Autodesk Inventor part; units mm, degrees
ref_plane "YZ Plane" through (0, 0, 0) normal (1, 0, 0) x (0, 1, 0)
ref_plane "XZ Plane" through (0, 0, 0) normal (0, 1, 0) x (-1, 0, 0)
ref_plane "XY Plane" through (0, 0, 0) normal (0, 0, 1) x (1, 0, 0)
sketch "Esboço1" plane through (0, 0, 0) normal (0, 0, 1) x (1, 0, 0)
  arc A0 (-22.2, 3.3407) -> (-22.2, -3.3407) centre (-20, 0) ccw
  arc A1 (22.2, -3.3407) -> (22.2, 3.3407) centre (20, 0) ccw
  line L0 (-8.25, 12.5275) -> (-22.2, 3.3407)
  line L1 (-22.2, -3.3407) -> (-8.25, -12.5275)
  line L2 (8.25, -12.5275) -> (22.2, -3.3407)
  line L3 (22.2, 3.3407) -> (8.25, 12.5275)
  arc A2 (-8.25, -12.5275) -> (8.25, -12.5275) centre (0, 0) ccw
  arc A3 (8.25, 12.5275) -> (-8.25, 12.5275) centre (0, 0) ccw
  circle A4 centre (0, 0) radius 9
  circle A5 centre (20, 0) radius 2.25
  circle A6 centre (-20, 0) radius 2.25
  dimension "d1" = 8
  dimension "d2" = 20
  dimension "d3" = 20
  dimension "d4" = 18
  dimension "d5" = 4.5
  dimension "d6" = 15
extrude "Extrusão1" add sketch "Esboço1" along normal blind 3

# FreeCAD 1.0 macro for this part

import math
import FreeCAD as App
import Part
import Sketcher
from FreeCAD import Vector

doc = App.newDocument("Part")
params = doc.addObject("Spreadsheet::Sheet", "Params")
for row, (alias, value) in enumerate([
    ("sketch1_diameter", "18 mm"),
    ("sketch1_radius", "4 mm"),
    ("sketch1_radius2", "15 mm"),
    ("sketch1_diameter2", "4.5 mm"),
    ("pad1_length", "3 mm"),
], start=1):
    params.set(f"A{row}", alias)
    params.set(f"B{row}", "=" + value)
    params.setAlias(f"B{row}", alias)

body = doc.addObject("PartDesign::Body", "Body")

# Sketch on XY plane
sketch1 = body.newObject("Sketcher::SketchObject", "Sketch")
sketch1.AttachmentSupport = (doc.getObject("XY_Plane"), [""])
sketch1.MapMode = "FlatFace"
sketch1.addGeometry([
    Part.LineSegment(Vector(-8.2, 12.5, 0), Vector(-22.2, 3.3, 0)),  # 0
    Part.ArcOfCircle(Part.Circle(Vector(-20, 0, 0), Vector(0, 0, 1), 4), math.radians(123), math.radians(237)),  # 1
    Part.LineSegment(Vector(-22.2, -3.3, 0), Vector(-8.2, -12.5, 0)),  # 2
    Part.ArcOfCircle(Part.Circle(Vector(0, 0, 0), Vector(0, 0, 1), 15), math.radians(-123), math.radians(-57)),  # 3
    Part.LineSegment(Vector(8.2, -12.5, 0), Vector(22.2, -3.3, 0)),  # 4
    Part.ArcOfCircle(Part.Circle(Vector(20, 0, 0), Vector(0, 0, 1), 4), math.radians(-57), math.radians(57)),  # 5
    Part.LineSegment(Vector(22.2, 3.3, 0), Vector(8.2, 12.5, 0)),  # 6
    Part.ArcOfCircle(Part.Circle(Vector(0, 0, 0), Vector(0, 0, 1), 15), math.radians(57), math.radians(123)),  # 7
    Part.Circle(Vector(-20, 0, 0), Vector(0, 0, 1), 2.2),  # 8
    Part.Circle(Vector(0, 0, 0), Vector(0, 0, 1), 9),  # 9
    Part.Circle(Vector(20, 0, 0), Vector(0, 0, 1), 2.2),  # 10
], False)
sketch1.addConstraint([
    Sketcher.Constraint("Tangent", 0, 2, 1, 1),
    Sketcher.Constraint("Tangent", 1, 2, 2, 1),
    Sketcher.Constraint("Tangent", 2, 2, 3, 1),
    Sketcher.Constraint("Tangent", 3, 2, 4, 1),
    Sketcher.Constraint("Tangent", 4, 2, 5, 1),
    Sketcher.Constraint("Tangent", 5, 2, 6, 1),
    Sketcher.Constraint("Tangent", 6, 2, 7, 1),
    Sketcher.Constraint("Tangent", 7, 2, 0, 1),
    Sketcher.Constraint("Coincident", 3, 3, -1, 1),
    Sketcher.Constraint("Coincident", 7, 3, -1, 1),
    Sketcher.Constraint("Coincident", 9, 3, -1, 1),
    Sketcher.Constraint("Coincident", 8, 3, 1, 3),
    Sketcher.Constraint("Coincident", 10, 3, 5, 3),
    Sketcher.Constraint("Equal", 1, 5),
    Sketcher.Constraint("Equal", 3, 7),
    Sketcher.Constraint("Equal", 8, 10),
    Sketcher.Constraint("Symmetric", 1, 3, 5, 3, -1, 1),
    Sketcher.Constraint("PointOnObject", 1, 3, -1),
    Sketcher.Constraint("Diameter", 9, 18.0),
    Sketcher.Constraint("Radius", 1, 4.0),
    Sketcher.Constraint("Radius", 3, 15.0),
    Sketcher.Constraint("Diameter", 8, 4.5),
    Sketcher.Constraint("DistanceX", 1, 3, -1, 1, 20.0),
])
sketch1.setExpression("Constraints[18]", "Params.sketch1_diameter")
sketch1.setExpression("Constraints[19]", "Params.sketch1_radius")
sketch1.setExpression("Constraints[20]", "Params.sketch1_radius2")
sketch1.setExpression("Constraints[21]", "Params.sketch1_diameter2")
pad1 = body.newObject("PartDesign::Pad", "Pad")
pad1.Profile = sketch1
pad1.setExpression("Length", "Params.pad1_length")

doc.recompute()
